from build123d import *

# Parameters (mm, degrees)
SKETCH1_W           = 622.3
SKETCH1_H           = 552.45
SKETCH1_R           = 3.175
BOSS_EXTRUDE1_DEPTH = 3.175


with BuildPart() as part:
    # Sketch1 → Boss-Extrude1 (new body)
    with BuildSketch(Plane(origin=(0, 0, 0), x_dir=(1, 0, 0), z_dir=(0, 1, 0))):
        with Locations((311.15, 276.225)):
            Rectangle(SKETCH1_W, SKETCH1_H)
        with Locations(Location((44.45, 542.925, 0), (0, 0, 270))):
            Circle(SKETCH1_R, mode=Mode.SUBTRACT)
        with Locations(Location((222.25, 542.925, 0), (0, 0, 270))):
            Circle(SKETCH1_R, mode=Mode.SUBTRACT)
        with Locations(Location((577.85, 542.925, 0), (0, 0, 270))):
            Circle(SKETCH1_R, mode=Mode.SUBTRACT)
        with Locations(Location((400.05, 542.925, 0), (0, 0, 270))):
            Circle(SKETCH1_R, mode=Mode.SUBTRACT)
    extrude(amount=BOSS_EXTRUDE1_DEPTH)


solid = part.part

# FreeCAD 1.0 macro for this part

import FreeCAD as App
import Part
import Sketcher
Q = App.Units.Quantity

doc = App.newDocument("Part")
body = doc.addObject("PartDesign::Body", "Body")

sketch1 = body.newObject("Sketcher::SketchObject", "Sketch")
sketch1.AttachmentSupport = (doc.getObject("XZ_Plane"), [""])
sketch1.MapMode = "FlatFace"
sketch1.addGeometry(Part.LineSegment(App.Vector(0, -552.5, 0), App.Vector(0, 0, 0)), False)
sketch1.addGeometry(Part.LineSegment(App.Vector(0, 0, 0), App.Vector(622.3, 0, 0)), False)
sketch1.addGeometry(Part.LineSegment(App.Vector(622.3, 0, 0), App.Vector(622.3, -552.5, 0)), False)
sketch1.addGeometry(Part.LineSegment(App.Vector(622.3, -552.5, 0), App.Vector(0, -552.5, 0)), False)
sketch1.addGeometry(Part.Circle(App.Vector(44.5, -542.9, 0), App.Vector(0, 0, 1), 3.2), False)
sketch1.addGeometry(Part.Circle(App.Vector(222.2, -542.9, 0), App.Vector(0, 0, 1), 3.2), False)
sketch1.addGeometry(Part.Circle(App.Vector(400.1, -542.9, 0), App.Vector(0, 0, 1), 3.2), False)
sketch1.addGeometry(Part.Circle(App.Vector(577.9, -542.9, 0), App.Vector(0, 0, 1), 3.2), False)
sketch1.addConstraint(Sketcher.Constraint("Coincident", 0, 2, 1, 1))
sketch1.addConstraint(Sketcher.Constraint("Coincident", 1, 2, 2, 1))
sketch1.addConstraint(Sketcher.Constraint("Coincident", 2, 2, 3, 1))
sketch1.addConstraint(Sketcher.Constraint("Coincident", 3, 2, 0, 1))
sketch1.addConstraint(Sketcher.Constraint("Vertical", 0))
sketch1.addConstraint(Sketcher.Constraint("Horizontal", 1))
sketch1.addConstraint(Sketcher.Constraint("Vertical", 2))
sketch1.addConstraint(Sketcher.Constraint("Horizontal", 3))
sketch1.addConstraint(Sketcher.Constraint("Coincident", 0, 2, -1, 1))
sketch1.addConstraint(Sketcher.Constraint("Equal", 4, 5))
sketch1.addConstraint(Sketcher.Constraint("Equal", 5, 6))
sketch1.addConstraint(Sketcher.Constraint("Equal", 6, 7))
sketch1.addConstraint(Sketcher.Constraint("Horizontal", 4, 3, 5, 3))
sketch1.addConstraint(Sketcher.Constraint("Horizontal", 5, 3, 6, 3))
sketch1.addConstraint(Sketcher.Constraint("Horizontal", 6, 3, 7, 3))
sketch1.addConstraint(Sketcher.Constraint("Diameter", 4, Q("0.25 in")))
sketch1.addConstraint(Sketcher.Constraint("DistanceX", 1, 1, 1, 2, Q("24.5 in")))
sketch1.addConstraint(Sketcher.Constraint("DistanceX", 4, 3, 5, 3, Q("7 in")))
sketch1.addConstraint(Sketcher.Constraint("DistanceX", 5, 3, 6, 3, Q("7 in")))
sketch1.addConstraint(Sketcher.Constraint("DistanceX", 6, 3, 7, 3, Q("7 in")))
sketch1.addConstraint(Sketcher.Constraint("DistanceY", 0, 1, 0, 2, Q("21.75 in")))
sketch1.addConstraint(Sketcher.Constraint("DistanceX", -1, 1, 4, 3, Q("1.75 in")))
sketch1.addConstraint(Sketcher.Constraint("DistanceY", 4, 3, -1, 1, Q("21.375 in")))
pad1 = body.newObject("PartDesign::Pad", "Pad")
pad1.Profile = sketch1
pad1.Length = Q("0.125 in")
pad1.Reversed = True

doc.recompute()
